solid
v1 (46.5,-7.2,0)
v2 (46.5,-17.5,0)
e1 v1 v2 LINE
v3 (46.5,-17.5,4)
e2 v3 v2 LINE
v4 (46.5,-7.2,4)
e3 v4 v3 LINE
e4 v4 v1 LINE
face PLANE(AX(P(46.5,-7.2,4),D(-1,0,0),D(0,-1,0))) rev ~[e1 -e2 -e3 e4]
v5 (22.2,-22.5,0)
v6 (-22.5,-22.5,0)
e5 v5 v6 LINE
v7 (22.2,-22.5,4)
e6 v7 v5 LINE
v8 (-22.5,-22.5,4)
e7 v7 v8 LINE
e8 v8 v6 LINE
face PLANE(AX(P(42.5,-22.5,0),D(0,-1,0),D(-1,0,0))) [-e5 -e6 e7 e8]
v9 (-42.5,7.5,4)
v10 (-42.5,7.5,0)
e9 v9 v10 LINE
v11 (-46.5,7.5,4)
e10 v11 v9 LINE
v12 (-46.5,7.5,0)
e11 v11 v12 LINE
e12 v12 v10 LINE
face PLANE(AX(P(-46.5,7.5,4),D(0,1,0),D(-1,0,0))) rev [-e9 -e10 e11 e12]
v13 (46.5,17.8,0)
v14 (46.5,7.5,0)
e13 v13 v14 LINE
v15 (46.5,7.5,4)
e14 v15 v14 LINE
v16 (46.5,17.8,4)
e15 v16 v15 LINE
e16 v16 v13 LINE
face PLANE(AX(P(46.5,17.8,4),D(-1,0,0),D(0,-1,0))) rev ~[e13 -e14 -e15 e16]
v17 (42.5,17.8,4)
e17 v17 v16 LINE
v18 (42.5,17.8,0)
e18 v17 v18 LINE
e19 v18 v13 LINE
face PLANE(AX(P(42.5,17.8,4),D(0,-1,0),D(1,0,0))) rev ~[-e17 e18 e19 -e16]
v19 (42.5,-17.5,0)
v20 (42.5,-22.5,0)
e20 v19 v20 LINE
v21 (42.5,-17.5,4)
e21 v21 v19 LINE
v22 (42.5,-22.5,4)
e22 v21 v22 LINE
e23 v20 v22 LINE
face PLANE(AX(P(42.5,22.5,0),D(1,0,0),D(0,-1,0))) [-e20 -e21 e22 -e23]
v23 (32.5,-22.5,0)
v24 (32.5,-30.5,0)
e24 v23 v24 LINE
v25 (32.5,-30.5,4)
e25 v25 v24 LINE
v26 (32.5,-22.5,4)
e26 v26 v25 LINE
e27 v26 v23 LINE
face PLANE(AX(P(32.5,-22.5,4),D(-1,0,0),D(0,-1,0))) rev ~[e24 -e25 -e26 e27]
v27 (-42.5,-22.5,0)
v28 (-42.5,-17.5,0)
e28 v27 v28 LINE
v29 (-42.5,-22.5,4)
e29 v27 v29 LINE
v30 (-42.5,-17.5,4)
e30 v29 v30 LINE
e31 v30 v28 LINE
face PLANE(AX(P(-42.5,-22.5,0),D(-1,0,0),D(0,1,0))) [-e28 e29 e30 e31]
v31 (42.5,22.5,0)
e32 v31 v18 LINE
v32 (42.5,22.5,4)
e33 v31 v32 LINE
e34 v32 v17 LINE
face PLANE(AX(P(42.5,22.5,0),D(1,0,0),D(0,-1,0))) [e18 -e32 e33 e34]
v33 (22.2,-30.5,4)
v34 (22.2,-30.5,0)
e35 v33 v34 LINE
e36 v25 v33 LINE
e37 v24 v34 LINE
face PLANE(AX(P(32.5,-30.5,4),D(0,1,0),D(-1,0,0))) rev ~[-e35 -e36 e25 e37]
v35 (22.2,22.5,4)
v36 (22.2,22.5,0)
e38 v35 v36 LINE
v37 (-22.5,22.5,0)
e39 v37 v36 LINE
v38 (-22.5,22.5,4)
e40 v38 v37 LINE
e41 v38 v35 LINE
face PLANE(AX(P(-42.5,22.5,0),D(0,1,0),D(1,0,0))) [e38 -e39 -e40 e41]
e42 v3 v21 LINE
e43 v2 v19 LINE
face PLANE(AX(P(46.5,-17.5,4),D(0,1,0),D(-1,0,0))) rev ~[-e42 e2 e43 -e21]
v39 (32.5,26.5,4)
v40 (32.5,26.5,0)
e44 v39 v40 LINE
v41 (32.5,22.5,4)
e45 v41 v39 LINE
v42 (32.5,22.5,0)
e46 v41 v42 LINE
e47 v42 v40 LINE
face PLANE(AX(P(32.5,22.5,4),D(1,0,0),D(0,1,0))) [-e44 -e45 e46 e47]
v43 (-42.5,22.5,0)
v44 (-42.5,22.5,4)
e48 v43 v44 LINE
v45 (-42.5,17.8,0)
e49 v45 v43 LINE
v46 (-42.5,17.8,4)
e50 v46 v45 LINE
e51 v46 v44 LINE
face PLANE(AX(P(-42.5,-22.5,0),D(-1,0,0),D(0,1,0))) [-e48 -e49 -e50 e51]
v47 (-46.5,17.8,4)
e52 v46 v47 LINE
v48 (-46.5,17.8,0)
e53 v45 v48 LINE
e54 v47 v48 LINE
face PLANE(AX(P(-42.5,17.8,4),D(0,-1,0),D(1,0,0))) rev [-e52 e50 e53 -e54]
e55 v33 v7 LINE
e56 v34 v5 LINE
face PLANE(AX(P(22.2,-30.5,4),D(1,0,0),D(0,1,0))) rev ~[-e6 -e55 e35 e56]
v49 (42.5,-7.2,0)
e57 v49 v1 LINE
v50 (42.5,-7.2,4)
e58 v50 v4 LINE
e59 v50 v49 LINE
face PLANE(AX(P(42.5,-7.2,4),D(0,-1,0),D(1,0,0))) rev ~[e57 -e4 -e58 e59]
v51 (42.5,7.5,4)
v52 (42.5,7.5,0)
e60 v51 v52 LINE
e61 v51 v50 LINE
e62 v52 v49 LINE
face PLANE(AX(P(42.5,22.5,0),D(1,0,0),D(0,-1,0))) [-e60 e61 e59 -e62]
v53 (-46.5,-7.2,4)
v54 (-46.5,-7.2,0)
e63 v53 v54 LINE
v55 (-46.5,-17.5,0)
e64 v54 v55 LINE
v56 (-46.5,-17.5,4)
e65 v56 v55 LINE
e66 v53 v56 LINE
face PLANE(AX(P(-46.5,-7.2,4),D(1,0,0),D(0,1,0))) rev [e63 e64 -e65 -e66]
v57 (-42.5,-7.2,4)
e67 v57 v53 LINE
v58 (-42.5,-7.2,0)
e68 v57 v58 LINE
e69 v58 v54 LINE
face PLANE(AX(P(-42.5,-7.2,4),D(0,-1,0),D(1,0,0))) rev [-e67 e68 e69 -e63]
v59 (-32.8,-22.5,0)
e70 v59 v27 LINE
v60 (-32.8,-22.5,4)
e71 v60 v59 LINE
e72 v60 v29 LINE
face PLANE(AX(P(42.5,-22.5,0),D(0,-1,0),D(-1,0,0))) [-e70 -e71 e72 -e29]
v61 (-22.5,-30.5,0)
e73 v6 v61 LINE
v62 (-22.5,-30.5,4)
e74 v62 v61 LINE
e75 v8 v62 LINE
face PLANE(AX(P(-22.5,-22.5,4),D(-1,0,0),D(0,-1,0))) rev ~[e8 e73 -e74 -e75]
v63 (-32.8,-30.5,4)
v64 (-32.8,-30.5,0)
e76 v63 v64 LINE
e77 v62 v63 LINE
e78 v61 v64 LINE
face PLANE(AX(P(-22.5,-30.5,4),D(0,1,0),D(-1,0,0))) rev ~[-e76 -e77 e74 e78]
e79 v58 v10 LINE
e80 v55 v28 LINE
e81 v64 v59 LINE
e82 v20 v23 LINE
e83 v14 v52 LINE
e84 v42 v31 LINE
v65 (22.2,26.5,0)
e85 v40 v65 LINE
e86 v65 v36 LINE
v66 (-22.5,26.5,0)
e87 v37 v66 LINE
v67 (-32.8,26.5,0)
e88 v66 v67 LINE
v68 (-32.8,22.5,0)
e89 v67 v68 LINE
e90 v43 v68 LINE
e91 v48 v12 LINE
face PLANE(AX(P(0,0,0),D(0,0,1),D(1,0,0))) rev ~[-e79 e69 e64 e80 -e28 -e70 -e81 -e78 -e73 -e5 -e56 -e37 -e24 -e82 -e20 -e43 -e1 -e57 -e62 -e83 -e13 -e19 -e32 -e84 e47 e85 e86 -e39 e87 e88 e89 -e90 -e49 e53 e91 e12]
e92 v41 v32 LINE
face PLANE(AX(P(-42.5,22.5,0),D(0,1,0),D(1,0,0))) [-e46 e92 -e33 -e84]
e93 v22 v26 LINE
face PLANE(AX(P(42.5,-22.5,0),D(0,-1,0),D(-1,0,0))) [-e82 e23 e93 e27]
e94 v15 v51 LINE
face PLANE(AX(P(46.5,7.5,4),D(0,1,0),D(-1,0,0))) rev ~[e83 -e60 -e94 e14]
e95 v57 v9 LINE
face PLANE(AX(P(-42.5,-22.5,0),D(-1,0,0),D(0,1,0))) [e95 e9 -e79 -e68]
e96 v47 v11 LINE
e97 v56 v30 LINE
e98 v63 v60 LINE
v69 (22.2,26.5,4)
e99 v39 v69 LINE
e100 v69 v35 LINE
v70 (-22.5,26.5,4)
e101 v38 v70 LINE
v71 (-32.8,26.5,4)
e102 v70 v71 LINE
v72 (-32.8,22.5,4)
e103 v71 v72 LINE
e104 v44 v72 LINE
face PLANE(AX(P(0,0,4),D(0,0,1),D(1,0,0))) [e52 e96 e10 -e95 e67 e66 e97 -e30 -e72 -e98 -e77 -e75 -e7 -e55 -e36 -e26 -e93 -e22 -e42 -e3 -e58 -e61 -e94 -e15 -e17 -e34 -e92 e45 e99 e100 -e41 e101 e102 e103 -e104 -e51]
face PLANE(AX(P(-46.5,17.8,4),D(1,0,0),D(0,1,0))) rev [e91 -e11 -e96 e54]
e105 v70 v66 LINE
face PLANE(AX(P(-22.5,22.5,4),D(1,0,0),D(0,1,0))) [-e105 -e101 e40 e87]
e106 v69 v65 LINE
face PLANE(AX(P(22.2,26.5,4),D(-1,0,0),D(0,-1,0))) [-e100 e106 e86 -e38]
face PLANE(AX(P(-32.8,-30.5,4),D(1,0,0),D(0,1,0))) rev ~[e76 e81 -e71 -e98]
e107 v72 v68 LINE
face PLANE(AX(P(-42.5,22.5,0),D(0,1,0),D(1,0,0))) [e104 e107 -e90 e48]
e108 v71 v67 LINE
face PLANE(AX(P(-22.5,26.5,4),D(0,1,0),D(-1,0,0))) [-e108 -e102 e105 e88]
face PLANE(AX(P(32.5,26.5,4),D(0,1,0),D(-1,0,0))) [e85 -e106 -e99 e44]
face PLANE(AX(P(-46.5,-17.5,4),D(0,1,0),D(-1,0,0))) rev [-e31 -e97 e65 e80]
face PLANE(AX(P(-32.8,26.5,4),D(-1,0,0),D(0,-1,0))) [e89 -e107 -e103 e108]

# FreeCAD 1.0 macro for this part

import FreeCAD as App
import Part
import Sketcher

V = App.Vector

doc = App.newDocument("Part")
body = doc.addObject("PartDesign::Body", "Body")

# Sketch on XY plane
sketch1 = doc.addObject("Sketcher::SketchObject", "Sketch")
body.addObject(sketch1)
sketch1.AttachmentSupport = (doc.XY_Plane, [""])
sketch1.MapMode = "FlatFace"
sketch1.addGeometry([
    Part.LineSegment(V(-42.5, -22.5, 0), V(42.5, -22.5, 0)),
    Part.LineSegment(V(42.5, -22.5, 0), V(42.5, 22.5, 0)),
    Part.LineSegment(V(42.5, 22.5, 0), V(-42.5, 22.5, 0)),
    Part.LineSegment(V(-42.5, 22.5, 0), V(-42.5, -22.5, 0)),
], False)
sketch1.addConstraint([
    Sketcher.Constraint("Coincident", 0, 2, 1, 1),
    Sketcher.Constraint("Coincident", 1, 2, 2, 1),
    Sketcher.Constraint("Coincident", 2, 2, 3, 1),
    Sketcher.Constraint("Coincident", 3, 2, 0, 1),
    Sketcher.Constraint("Horizontal", 0),
    Sketcher.Constraint("Vertical", 1),
    Sketcher.Constraint("Horizontal", 2),
    Sketcher.Constraint("Vertical", 3),
    Sketcher.Constraint("Symmetric", 0, 2, 2, 2, -1, 1),
    Sketcher.Constraint("DistanceX", 0, 1, 0, 2, 85.0),
    Sketcher.Constraint("DistanceY", 1, 1, 1, 2, 45.0),
])
pad1 = doc.addObject("PartDesign::Pad", "Pad")
body.addObject(pad1)
pad1.Profile = sketch1
pad1.Length = 4

# Sketch on XY plane
sketch2 = doc.addObject("Sketcher::SketchObject", "Sketch001")
body.addObject(sketch2)
sketch2.AttachmentSupport = (doc.XY_Plane, [""])
sketch2.MapMode = "FlatFace"
sketch2.AttachmentOffset = App.Placement(V(0, 0, 4), App.Rotation())
sketch2.addGeometry([
    Part.LineSegment(V(42.5, -7.2, 0), V(42.5, -17.5, 0)),  # 0
    Part.LineSegment(V(42.5, -17.5, 0), V(46.5, -17.5, 0)),  # 1
    Part.LineSegment(V(46.5, -17.5, 0), V(46.5, -7.2, 0)),  # 2
    Part.LineSegment(V(46.5, -7.2, 0), V(42.5, -7.2, 0)),  # 3
    Part.LineSegment(V(46.5, 17.8, 0), V(42.5, 17.8, 0)),  # 4
    Part.LineSegment(V(42.5, 17.8, 0), V(42.5, 7.5, 0)),  # 5
    Part.LineSegment(V(42.5, 7.5, 0), V(46.5, 7.5, 0)),  # 6
    Part.LineSegment(V(46.5, 7.5, 0), V(46.5, 17.8, 0)),  # 7
], False)
sketch2.addConstraint([
    Sketcher.Constraint("Coincident", 0, 2, 1, 1),
    Sketcher.Constraint("Coincident", 1, 2, 2, 1),
    Sketcher.Constraint("Coincident", 2, 2, 3, 1),
    Sketcher.Constraint("Coincident", 3, 2, 0, 1),
    Sketcher.Constraint("Coincident", 4, 2, 5, 1),
    Sketcher.Constraint("Coincident", 5, 2, 6, 1),
    Sketcher.Constraint("Coincident", 6, 2, 7, 1),
    Sketcher.Constraint("Coincident", 7, 2, 4, 1),
    Sketcher.Constraint("Vertical", 0),
    Sketcher.Constraint("Horizontal", 1),
    Sketcher.Constraint("Vertical", 2),
    Sketcher.Constraint("Horizontal", 3),
    Sketcher.Constraint("Horizontal", 4),
    Sketcher.Constraint("Vertical", 5),
    Sketcher.Constraint("Horizontal", 6),
    Sketcher.Constraint("Vertical", 7),
    Sketcher.Constraint("Vertical", 3, 2, 4, 2),
    Sketcher.Constraint("Vertical", 2, 2, 6, 2),
    Sketcher.Constraint("Equal", 2, 5),
    Sketcher.Constraint("DistanceX", 1, 1, 1, 2, 4.0),
    Sketcher.Constraint("DistanceY", 0, 2, 0, 1, 10.3),
    Sketcher.Constraint("DistanceY", 3, 2, 4, 2, 25.0),
    Sketcher.Constraint("DistanceX", -1, 1, 0, 2, 42.5),
    Sketcher.Constraint("DistanceY", 0, 2, -1, 1, 17.5),
])
pad2 = doc.addObject("PartDesign::Pad", "Pad001")
body.addObject(pad2)
pad2.Profile = sketch2
pad2.Length = 4
pad2.Reversed = True
doc.recompute()

mirrored = doc.addObject("PartDesign::Mirrored", "Mirrored")
body.addObject(mirrored)
mirrored.Originals = [pad2]
mirrored.MirrorPlane = (doc.YZ_Plane, [""])
body.Tip = mirrored

# Sketch on XY plane
sketch3 = doc.addObject("Sketcher::SketchObject", "Sketch002")
body.addObject(sketch3)
sketch3.AttachmentSupport = (doc.XY_Plane, [""])
sketch3.MapMode = "FlatFace"
sketch3.AttachmentOffset = App.Placement(V(0, 0, 4), App.Rotation())
sketch3.addGeometry([
    Part.LineSegment(V(32.5, -22.5, 0), V(22.2, -22.5, 0)),  # 0
    Part.LineSegment(V(22.2, -22.5, 0), V(22.2, -30.5, 0)),  # 1
    Part.LineSegment(V(22.2, -30.5, 0), V(32.5, -30.5, 0)),  # 2
    Part.LineSegment(V(32.5, -30.5, 0), V(32.5, -22.5, 0)),  # 3
    Part.LineSegment(V(-22.5, -22.5, 0), V(-32.8, -22.5, 0)),  # 4
    Part.LineSegment(V(-32.8, -22.5, 0), V(-32.8, -30.5, 0)),  # 5
    Part.LineSegment(V(-32.8, -30.5, 0), V(-22.5, -30.5, 0)),  # 6
    Part.LineSegment(V(-22.5, -30.5, 0), V(-22.5, -22.5, 0)),  # 7
], False)
sketch3.addConstraint([
    Sketcher.Constraint("Coincident", 0, 2, 1, 1),
    Sketcher.Constraint("Coincident", 1, 2, 2, 1),
    Sketcher.Constraint("Coincident", 2, 2, 3, 1),
    Sketcher.Constraint("Coincident", 3, 2, 0, 1),
    Sketcher.Constraint("Coincident", 4, 2, 5, 1),
    Sketcher.Constraint("Coincident", 5, 2, 6, 1),
    Sketcher.Constraint("Coincident", 6, 2, 7, 1),
    Sketcher.Constraint("Coincident", 7, 2, 4, 1),
    Sketcher.Constraint("Horizontal", 0),
    Sketcher.Constraint("Vertical", 1),
    Sketcher.Constraint("Horizontal", 2),
    Sketcher.Constraint("Vertical", 3),
    Sketcher.Constraint("Horizontal", 4),
    Sketcher.Constraint("Vertical", 5),
    Sketcher.Constraint("Horizontal", 6),
    Sketcher.Constraint("Vertical", 7),
    Sketcher.Constraint("Horizontal", 3, 2, 4, 2),
    Sketcher.Constraint("Horizontal", 2, 2, 5, 2),
    Sketcher.Constraint("Equal", 2, 4),
    Sketcher.Constraint("DistanceY", 1, 2, 1, 1, 8.0),
    Sketcher.Constraint("DistanceX", 0, 2, 0, 1, 10.3),
    Sketcher.Constraint("DistanceX", 4, 2, 0, 2, 55.0),
    Sketcher.Constraint("DistanceX", -1, 1, 0, 2, 22.2),
    Sketcher.Constraint("DistanceY", 0, 2, -1, 1, 22.5),
])
pad3 = doc.addObject("PartDesign::Pad", "Pad002")
body.addObject(pad3)
pad3.Profile = sketch3
pad3.Length = 4
pad3.Reversed = True

# Sketch on XY plane
sketch4 = doc.addObject("Sketcher::SketchObject", "Sketch003")
body.addObject(sketch4)
sketch4.AttachmentSupport = (doc.XY_Plane, [""])
sketch4.MapMode = "FlatFace"
sketch4.AttachmentOffset = App.Placement(V(0, 0, 4), App.Rotation())
sketch4.addGeometry([
    Part.LineSegment(V(-32.8, 22.5, 0), V(-22.5, 22.5, 0)),  # 0
    Part.LineSegment(V(-22.5, 22.5, 0), V(-22.5, 26.5, 0)),  # 1
    Part.LineSegment(V(-22.5, 26.5, 0), V(-32.8, 26.5, 0)),  # 2
    Part.LineSegment(V(-32.8, 26.5, 0), V(-32.8, 22.5, 0)),  # 3
    Part.LineSegment(V(22.2, 22.5, 0), V(32.5, 22.5, 0)),  # 4
    Part.LineSegment(V(32.5, 22.5, 0), V(32.5, 26.5, 0)),  # 5
    Part.LineSegment(V(32.5, 26.5, 0), V(22.2, 26.5, 0)),  # 6
    Part.LineSegment(V(22.2, 26.5, 0), V(22.2, 22.5, 0)),  # 7
], False)
sketch4.addConstraint([
    Sketcher.Constraint("Coincident", 0, 2, 1, 1),
    Sketcher.Constraint("Coincident", 1, 2, 2, 1),
    Sketcher.Constraint("Coincident", 2, 2, 3, 1),
    Sketcher.Constraint("Coincident", 3, 2, 0, 1),
    Sketcher.Constraint("Coincident", 4, 2, 5, 1),
    Sketcher.Constraint("Coincident", 5, 2, 6, 1),
    Sketcher.Constraint("Coincident", 6, 2, 7, 1),
    Sketcher.Constraint("Coincident", 7, 2, 4, 1),
    Sketcher.Constraint("Horizontal", 0),
    Sketcher.Constraint("Vertical", 1),
    Sketcher.Constraint("Horizontal", 2),
    Sketcher.Constraint("Vertical", 3),
    Sketcher.Constraint("Horizontal", 4),
    Sketcher.Constraint("Vertical", 5),
    Sketcher.Constraint("Horizontal", 6),
    Sketcher.Constraint("Vertical", 7),
    Sketcher.Constraint("Horizontal", 3, 2, 4, 2),
    Sketcher.Constraint("Horizontal", 2, 2, 5, 2),
    Sketcher.Constraint("Equal", 2, 4),
    Sketcher.Constraint("DistanceY", 1, 1, 1, 2, 4.0),
    Sketcher.Constraint("DistanceX", 0, 1, 0, 2, 10.3),
    Sketcher.Constraint("DistanceX", 0, 2, 4, 2, 55.0),
    Sketcher.Constraint("DistanceX", 0, 2, -1, 1, 22.5),
    Sketcher.Constraint("DistanceY", -1, 1, 0, 2, 22.5),
])
pad4 = doc.addObject("PartDesign::Pad", "Pad003")
body.addObject(pad4)
pad4.Profile = sketch4
pad4.Length = 4
pad4.Reversed = True

doc.recompute()
